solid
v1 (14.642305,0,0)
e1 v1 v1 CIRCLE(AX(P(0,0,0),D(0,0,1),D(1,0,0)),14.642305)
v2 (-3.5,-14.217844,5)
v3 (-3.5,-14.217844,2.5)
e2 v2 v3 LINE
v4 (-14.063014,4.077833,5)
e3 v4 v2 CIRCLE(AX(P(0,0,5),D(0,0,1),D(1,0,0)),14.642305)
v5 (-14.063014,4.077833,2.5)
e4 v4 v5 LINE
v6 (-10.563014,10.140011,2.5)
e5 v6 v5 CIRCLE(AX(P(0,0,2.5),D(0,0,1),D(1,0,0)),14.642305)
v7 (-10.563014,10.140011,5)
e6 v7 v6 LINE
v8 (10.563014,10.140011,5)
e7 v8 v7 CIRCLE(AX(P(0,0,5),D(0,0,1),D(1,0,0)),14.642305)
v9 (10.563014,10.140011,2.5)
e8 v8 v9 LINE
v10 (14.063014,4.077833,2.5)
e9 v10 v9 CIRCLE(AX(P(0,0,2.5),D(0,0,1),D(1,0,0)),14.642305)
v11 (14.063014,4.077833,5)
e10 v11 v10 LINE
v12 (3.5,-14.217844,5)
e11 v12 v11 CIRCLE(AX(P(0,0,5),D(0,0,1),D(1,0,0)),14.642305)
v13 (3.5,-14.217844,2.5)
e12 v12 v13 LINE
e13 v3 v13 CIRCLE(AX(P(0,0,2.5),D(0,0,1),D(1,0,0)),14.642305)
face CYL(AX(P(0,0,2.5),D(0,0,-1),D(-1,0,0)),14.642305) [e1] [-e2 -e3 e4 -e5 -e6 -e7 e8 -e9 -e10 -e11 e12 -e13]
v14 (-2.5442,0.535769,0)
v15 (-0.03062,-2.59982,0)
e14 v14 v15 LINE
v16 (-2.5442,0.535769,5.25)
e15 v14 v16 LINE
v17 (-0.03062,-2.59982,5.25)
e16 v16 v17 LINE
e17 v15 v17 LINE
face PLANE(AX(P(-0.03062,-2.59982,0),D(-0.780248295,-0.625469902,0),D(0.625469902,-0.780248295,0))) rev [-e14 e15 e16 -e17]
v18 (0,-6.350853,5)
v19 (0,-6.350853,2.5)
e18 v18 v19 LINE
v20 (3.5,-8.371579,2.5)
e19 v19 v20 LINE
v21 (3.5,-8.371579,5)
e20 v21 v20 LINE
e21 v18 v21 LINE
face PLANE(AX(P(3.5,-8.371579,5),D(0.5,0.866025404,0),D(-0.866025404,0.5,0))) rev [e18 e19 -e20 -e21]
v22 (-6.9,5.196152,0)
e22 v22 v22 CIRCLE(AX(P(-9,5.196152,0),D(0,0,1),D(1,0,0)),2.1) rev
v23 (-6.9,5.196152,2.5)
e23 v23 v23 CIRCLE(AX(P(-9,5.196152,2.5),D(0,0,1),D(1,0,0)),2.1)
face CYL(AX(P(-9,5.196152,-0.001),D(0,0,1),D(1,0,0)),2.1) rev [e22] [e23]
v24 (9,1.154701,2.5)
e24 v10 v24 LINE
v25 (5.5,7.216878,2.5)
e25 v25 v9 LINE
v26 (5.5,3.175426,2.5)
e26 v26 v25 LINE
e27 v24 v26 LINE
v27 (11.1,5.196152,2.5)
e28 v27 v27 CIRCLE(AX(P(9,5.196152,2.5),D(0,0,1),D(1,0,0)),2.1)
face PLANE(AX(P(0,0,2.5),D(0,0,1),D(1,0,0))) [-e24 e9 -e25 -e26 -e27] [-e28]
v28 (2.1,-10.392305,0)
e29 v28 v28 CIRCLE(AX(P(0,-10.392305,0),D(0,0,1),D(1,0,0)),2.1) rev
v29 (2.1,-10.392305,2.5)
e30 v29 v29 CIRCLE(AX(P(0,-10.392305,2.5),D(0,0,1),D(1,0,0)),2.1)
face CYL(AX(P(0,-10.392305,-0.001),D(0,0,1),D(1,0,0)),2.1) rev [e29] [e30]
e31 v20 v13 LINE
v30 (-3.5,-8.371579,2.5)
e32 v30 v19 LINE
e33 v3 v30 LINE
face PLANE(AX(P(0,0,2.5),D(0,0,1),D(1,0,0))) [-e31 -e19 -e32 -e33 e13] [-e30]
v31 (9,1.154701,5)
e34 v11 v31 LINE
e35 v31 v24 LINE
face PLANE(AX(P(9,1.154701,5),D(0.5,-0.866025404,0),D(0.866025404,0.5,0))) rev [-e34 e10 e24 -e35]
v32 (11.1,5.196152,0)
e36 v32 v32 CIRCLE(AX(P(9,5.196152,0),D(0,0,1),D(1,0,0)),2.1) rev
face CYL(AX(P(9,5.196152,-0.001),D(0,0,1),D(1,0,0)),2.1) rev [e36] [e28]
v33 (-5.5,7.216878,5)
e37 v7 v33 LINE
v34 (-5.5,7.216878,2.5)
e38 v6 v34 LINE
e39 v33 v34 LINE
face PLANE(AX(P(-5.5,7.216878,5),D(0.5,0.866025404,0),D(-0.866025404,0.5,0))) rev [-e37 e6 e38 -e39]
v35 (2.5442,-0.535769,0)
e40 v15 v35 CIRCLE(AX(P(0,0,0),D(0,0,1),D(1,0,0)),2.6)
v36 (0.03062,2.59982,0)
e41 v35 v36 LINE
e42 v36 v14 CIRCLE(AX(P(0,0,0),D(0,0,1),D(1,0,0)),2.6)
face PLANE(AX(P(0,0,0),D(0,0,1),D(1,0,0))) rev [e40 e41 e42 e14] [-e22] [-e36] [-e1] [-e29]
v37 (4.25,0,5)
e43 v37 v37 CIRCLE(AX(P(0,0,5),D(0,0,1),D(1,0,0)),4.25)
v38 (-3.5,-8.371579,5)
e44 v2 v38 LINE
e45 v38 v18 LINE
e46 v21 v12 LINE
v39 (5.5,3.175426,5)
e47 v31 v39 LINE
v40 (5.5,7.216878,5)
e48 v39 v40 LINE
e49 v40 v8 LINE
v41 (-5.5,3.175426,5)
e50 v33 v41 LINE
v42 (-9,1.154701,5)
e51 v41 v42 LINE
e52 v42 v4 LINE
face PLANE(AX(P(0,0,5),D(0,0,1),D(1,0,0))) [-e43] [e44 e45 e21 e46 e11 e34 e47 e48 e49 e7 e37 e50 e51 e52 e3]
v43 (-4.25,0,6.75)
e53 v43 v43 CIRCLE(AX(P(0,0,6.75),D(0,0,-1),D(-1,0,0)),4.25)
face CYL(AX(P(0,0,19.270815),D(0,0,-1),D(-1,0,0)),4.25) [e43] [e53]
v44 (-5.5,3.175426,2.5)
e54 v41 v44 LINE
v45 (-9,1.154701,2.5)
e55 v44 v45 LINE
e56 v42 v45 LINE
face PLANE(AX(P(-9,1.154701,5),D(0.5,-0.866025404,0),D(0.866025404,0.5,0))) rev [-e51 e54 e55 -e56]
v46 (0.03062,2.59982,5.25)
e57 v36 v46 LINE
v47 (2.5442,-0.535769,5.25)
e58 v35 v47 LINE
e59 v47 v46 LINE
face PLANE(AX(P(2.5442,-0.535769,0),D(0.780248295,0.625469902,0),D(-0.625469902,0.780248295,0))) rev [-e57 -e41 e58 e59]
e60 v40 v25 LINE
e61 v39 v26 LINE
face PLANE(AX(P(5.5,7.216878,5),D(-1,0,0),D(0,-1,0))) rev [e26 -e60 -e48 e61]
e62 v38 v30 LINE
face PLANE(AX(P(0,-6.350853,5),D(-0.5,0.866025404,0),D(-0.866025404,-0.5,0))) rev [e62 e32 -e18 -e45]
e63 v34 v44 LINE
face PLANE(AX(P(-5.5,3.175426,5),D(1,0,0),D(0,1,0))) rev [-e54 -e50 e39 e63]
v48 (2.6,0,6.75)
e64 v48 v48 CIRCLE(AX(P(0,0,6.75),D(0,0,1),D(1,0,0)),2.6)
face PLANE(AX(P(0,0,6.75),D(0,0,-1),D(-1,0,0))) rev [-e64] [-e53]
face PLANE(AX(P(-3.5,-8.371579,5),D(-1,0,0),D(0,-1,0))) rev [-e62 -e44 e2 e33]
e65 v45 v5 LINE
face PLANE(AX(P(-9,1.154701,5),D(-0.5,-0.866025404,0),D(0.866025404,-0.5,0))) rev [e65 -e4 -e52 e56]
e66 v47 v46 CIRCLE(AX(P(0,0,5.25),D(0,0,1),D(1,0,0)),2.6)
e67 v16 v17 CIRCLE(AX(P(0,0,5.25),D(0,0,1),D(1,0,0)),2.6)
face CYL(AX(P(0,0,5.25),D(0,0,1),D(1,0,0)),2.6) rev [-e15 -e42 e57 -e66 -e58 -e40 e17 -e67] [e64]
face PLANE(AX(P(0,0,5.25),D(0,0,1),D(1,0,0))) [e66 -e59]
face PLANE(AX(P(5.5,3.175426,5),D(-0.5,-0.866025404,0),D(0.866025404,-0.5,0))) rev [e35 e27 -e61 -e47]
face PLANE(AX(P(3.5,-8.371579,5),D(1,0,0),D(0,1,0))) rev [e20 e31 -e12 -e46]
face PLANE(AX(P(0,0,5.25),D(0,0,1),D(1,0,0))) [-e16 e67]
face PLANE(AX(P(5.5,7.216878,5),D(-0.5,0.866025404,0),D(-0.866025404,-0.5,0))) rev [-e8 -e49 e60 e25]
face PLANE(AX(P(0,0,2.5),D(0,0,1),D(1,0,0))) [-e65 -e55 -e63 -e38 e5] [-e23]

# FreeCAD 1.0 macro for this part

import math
import FreeCAD as App
import Part
import Sketcher
Q = App.Units.Quantity

doc = App.newDocument("Part")
params = doc.addObject("Spreadsheet::Sheet", "Params")
for row, (alias, value) in enumerate([
    ("pad1_length", "2.5 mm"),
    ("pad2_length", "2.5 mm"),
    ("sketch3_diameter", "4.2 mm"),
    ("sketch4_diameter", "4.2 mm"),
    ("sketch5_diameter", "4.2 mm"),
    ("sketch6_diameter", "8.5 mm"),
    ("pad3_length", "1.75 mm"),
    ("sketch7_diameter", "5.2 mm"),
    ("pocket4_length", "1.5 mm"),
    ("sketch8_radius", "2.6 mm"),
], start=1):
    params.set(f"A{row}", alias)
    params.set(f"B{row}", "=" + value)
    params.setAlias(f"B{row}", alias)

body = doc.addObject("PartDesign::Body", "Body")

# Sketch on XY plane
sketch1 = body.newObject("Sketcher::SketchObject", "Sketch")
sketch1.AttachmentSupport = (doc.getObject("XY_Plane"), [""])
sketch1.MapMode = "FlatFace"
sketch1.addGeometry(Part.Circle(App.Vector(0, 0, 0), App.Vector(0, 0, 1), 15), False)
sketch1.addConstraint([
    Sketcher.Constraint("Coincident", 0, 3, -1, 1),
    Sketcher.Constraint("Diameter", 0, Q("29.28461 mm")),
])
pad1 = body.newObject("PartDesign::Pad", "Pad")
pad1.Profile = sketch1
pad1.setExpression("Length", "Params.pad1_length")

# Sketch on XY plane
sketch2 = body.newObject("Sketcher::SketchObject", "Sketch001")
sketch2.AttachmentSupport = (doc.getObject("XY_Plane"), [""])
sketch2.MapMode = "FlatFace"
sketch2.AttachmentOffset = App.Placement(App.Vector(0, 0, 2.5), App.Rotation())
sketch2.addGeometry([
    Part.LineSegment(App.Vector(5.5, 7.2, 0), App.Vector(10.6, 10.1, 0)),  # 0
    Part.ArcOfCircle(Part.Circle(App.Vector(0, 0, 0), App.Vector(0, 0, 1), 14.6), math.radians(43.83), math.radians(48.91)),  # 1
    Part.ArcOfCircle(Part.Circle(App.Vector(0, 0, 0), App.Vector(0, 0, 1), 14.6), math.radians(49), math.radians(136)),  # 2
    Part.LineSegment(App.Vector(-10.6, 10.1, 0), App.Vector(-5.5, 7.2, 0)),  # 3
    Part.LineSegment(App.Vector(-5.5, 7.2, 0), App.Vector(-5.5, 3.2, 0)),  # 4
    Part.LineSegment(App.Vector(-5.5, 3.2, 0), App.Vector(-9, 1.2, 0)),  # 5
    Part.LineSegment(App.Vector(-9, 1.2, 0), App.Vector(-14.1, 4.1, 0)),  # 6
    Part.ArcOfCircle(Part.Circle(App.Vector(0, 0, 0), App.Vector(0, 0, 1), 14.6), math.radians(164), math.radians(256)),  # 7
    Part.LineSegment(App.Vector(-3.5, -14.2, 0), App.Vector(-3.5, -8.4, 0)),  # 8
    Part.LineSegment(App.Vector(-3.5, -8.4, 0), App.Vector(0, -6.4, 0)),  # 9
    Part.LineSegment(App.Vector(0, -6.4, 0), App.Vector(3.5, -8.4, 0)),  # 10
    Part.LineSegment(App.Vector(3.5, -8.4, 0), App.Vector(3.5, -14.2, 0)),  # 11
    Part.ArcOfCircle(Part.Circle(App.Vector(0, 0, 0), App.Vector(0, 0, 1), 14.6), math.radians(-76), math.radians(16)),  # 12
    Part.LineSegment(App.Vector(14.1, 4.1, 0), App.Vector(9, 1.2, 0)),  # 13
    Part.LineSegment(App.Vector(9, 1.2, 0), App.Vector(5.5, 3.2, 0)),  # 14
    Part.LineSegment(App.Vector(5.5, 3.2, 0), App.Vector(5.5, 7.2, 0)),  # 15
], False)
sketch2.addConstraint([
    Sketcher.Constraint("Coincident", 0, 2, 1, 1),
    Sketcher.Constraint("Tangent", 1, 2, 2, 1),
    Sketcher.Constraint("Coincident", 2, 2, 3, 1),
    Sketcher.Constraint("Coincident", 3, 2, 4, 1),
    Sketcher.Constraint("Coincident", 4, 2, 5, 1),
    Sketcher.Constraint("Coincident", 5, 2, 6, 1),
    Sketcher.Constraint("Coincident", 6, 2, 7, 1),
    Sketcher.Constraint("Coincident", 7, 2, 8, 1),
    Sketcher.Constraint("Coincident", 8, 2, 9, 1),
    Sketcher.Constraint("Coincident", 9, 2, 10, 1),
    Sketcher.Constraint("Coincident", 10, 2, 11, 1),
    Sketcher.Constraint("Coincident", 11, 2, 12, 1),
    Sketcher.Constraint("Coincident", 12, 2, 13, 1),
    Sketcher.Constraint("Coincident", 13, 2, 14, 1),
    Sketcher.Constraint("Coincident", 14, 2, 15, 1),
    Sketcher.Constraint("Coincident", 15, 2, 0, 1),
    Sketcher.Constraint("Vertical", 4),
    Sketcher.Constraint("Vertical", 8),
    Sketcher.Constraint("Vertical", 11),
    Sketcher.Constraint("Vertical", 15),
    Sketcher.Constraint("Coincident", 1, 3, -1, 1),
    Sketcher.Constraint("Coincident", 7, 3, -1, 1),
    Sketcher.Constraint("Coincident", 12, 3, -1, 1),
    Sketcher.Constraint("Equal", 1, 2),
    Sketcher.Constraint("Equal", 2, 7),
    Sketcher.Constraint("Equal", 7, 12),
    Sketcher.Constraint("Symmetric", 8, 2, 10, 2, -2),
    Sketcher.Constraint("Symmetric", 5, 2, 13, 2, -2),
    Sketcher.Constraint("Symmetric", 4, 2, 14, 2, -2),
    Sketcher.Constraint("PointOnObject", 9, 2, -2),
    Sketcher.Constraint("Parallel", 0, 5),
    Sketcher.Constraint("Parallel", 3, 6),
    Sketcher.Constraint("Parallel", 5, 9),
    Sketcher.Constraint("Parallel", 6, 10),
    Sketcher.Constraint("Parallel", 9, 13),
    Sketcher.Constraint("Horizontal", 0, 2, 2, 2),
    Sketcher.Constraint("Equal", 3, 6),
    Sketcher.Constraint("Equal", 5, 9),
    Sketcher.Constraint("Angle", 0, Q("30 deg")),
    Sketcher.Constraint("DistanceX", 5, 2, -1, 1, Q("9 mm")),
    Sketcher.Constraint("DistanceX", 8, 2, 10, 2, Q("7 mm")),
    Sketcher.Constraint("Radius", 1, Q("14.642305 mm")),
    Sketcher.Constraint("DistanceY", 4, 2, 4, 1, Q("4.041452 mm")),
    Sketcher.Constraint("DistanceY", 8, 1, 8, 2, Q("5.846265 mm")),
    Sketcher.Constraint("DistanceX", 1, 2, 0, 2, Q("0.939822 mm")),
])
pad2 = body.newObject("PartDesign::Pad", "Pad001")
pad2.Profile = sketch2
pad2.setExpression("Length", "Params.pad2_length")

# Sketch on XY plane
sketch3 = body.newObject("Sketcher::SketchObject", "Sketch002")
sketch3.AttachmentSupport = (doc.getObject("XY_Plane"), [""])
sketch3.MapMode = "FlatFace"
sketch3.AttachmentOffset = App.Placement(App.Vector(0, 0, 2.5), App.Rotation())
sketch3.addGeometry(Part.Circle(App.Vector(-9, 5.2, 0), App.Vector(0, 0, 1), 2.1), False)
sketch3.addConstraint([
    Sketcher.Constraint("Diameter", 0, Q("4.2 mm")),
    Sketcher.Constraint("DistanceX", 0, 3, -1, 1, Q("9 mm")),
    Sketcher.Constraint("DistanceY", -1, 1, 0, 3, Q("5.196152 mm")),
])
sketch3.setExpression("Constraints[0]", "Params.sketch3_diameter")
pocket1 = body.newObject("PartDesign::Pocket", "Pocket")
pocket1.Profile = sketch3
pocket1.Type = "UpToFirst"

# Sketch on XY plane
sketch4 = body.newObject("Sketcher::SketchObject", "Sketch003")
sketch4.AttachmentSupport = (doc.getObject("XY_Plane"), [""])
sketch4.MapMode = "FlatFace"
sketch4.AttachmentOffset = App.Placement(App.Vector(0, 0, 2.5), App.Rotation())
sketch4.addGeometry(Part.Circle(App.Vector(9, 5.2, 0), App.Vector(0, 0, 1), 2.1), False)
sketch4.addConstraint([
    Sketcher.Constraint("Diameter", 0, Q("4.2 mm")),
    Sketcher.Constraint("DistanceX", -1, 1, 0, 3, Q("9 mm")),
    Sketcher.Constraint("DistanceY", -1, 1, 0, 3, Q("5.196152 mm")),
])
sketch4.setExpression("Constraints[0]", "Params.sketch4_diameter")
pocket2 = body.newObject("PartDesign::Pocket", "Pocket001")
pocket2.Profile = sketch4
pocket2.Type = "UpToFirst"

# Sketch on XY plane
sketch5 = body.newObject("Sketcher::SketchObject", "Sketch004")
sketch5.AttachmentSupport = (doc.getObject("XY_Plane"), [""])
sketch5.MapMode = "FlatFace"
sketch5.AttachmentOffset = App.Placement(App.Vector(0, 0, 2.5), App.Rotation())
sketch5.addGeometry(Part.Circle(App.Vector(0, -10.4, 0), App.Vector(0, 0, 1), 2.1), False)
sketch5.addConstraint([
    Sketcher.Constraint("PointOnObject", 0, 3, -2),
    Sketcher.Constraint("Diameter", 0, Q("4.2 mm")),
    Sketcher.Constraint("DistanceY", 0, 3, -1, 1, Q("10.392305 mm")),
])
sketch5.setExpression("Constraints[1]", "Params.sketch5_diameter")
pocket3 = body.newObject("PartDesign::Pocket", "Pocket002")
pocket3.Profile = sketch5
pocket3.Type = "UpToFirst"

# Sketch on XY plane
sketch6 = body.newObject("Sketcher::SketchObject", "Sketch005")
sketch6.AttachmentSupport = (doc.getObject("XY_Plane"), [""])
sketch6.MapMode = "FlatFace"
sketch6.AttachmentOffset = App.Placement(App.Vector(0, 0, 5), App.Rotation())
sketch6.addGeometry(Part.Circle(App.Vector(0, 0, 0), App.Vector(0, 0, 1), 4.2), False)
sketch6.addConstraint([
    Sketcher.Constraint("Coincident", 0, 3, -1, 1),
    Sketcher.Constraint("Diameter", 0, Q("8.5 mm")),
])
sketch6.setExpression("Constraints[1]", "Params.sketch6_diameter")
pad3 = body.newObject("PartDesign::Pad", "Pad002")
pad3.Profile = sketch6
pad3.setExpression("Length", "Params.pad3_length")

# Sketch on XY plane
sketch7 = body.newObject("Sketcher::SketchObject", "Sketch006")
sketch7.AttachmentSupport = (doc.getObject("XY_Plane"), [""])
sketch7.MapMode = "FlatFace"
sketch7.AttachmentOffset = App.Placement(App.Vector(0, 0, 6.75), App.Rotation())
sketch7.addGeometry(Part.Circle(App.Vector(0, 0, 0), App.Vector(0, 0, 1), 2.6), False)
sketch7.addConstraint([
    Sketcher.Constraint("Coincident", 0, 3, -1, 1),
    Sketcher.Constraint("Diameter", 0, Q("5.2 mm")),
])
sketch7.setExpression("Constraints[1]", "Params.sketch7_diameter")
pocket4 = body.newObject("PartDesign::Pocket", "Pocket003")
pocket4.Profile = sketch7
pocket4.setExpression("Length", "Params.pocket4_length")

# Sketch on XY plane
sketch8 = body.newObject("Sketcher::SketchObject", "Sketch007")
sketch8.AttachmentSupport = (doc.getObject("XY_Plane"), [""])
sketch8.MapMode = "FlatFace"
sketch8.AttachmentOffset = App.Placement(App.Vector(0, 0, 6.75), App.Rotation())
sketch8.addGeometry([
    Part.LineSegment(App.Vector(2.5, -0.5, 0), App.Vector(0, 2.6, 0)),
    Part.ArcOfCircle(Part.Circle(App.Vector(0, 0, 0), App.Vector(0, 0, 1), 2.6), math.radians(89), math.radians(168)),
    Part.LineSegment(App.Vector(-2.5, 0.5, 0), App.Vector(0, -2.6, 0)),
    Part.ArcOfCircle(Part.Circle(App.Vector(0, 0, 0), App.Vector(0, 0, 1), 2.6), math.radians(-91), math.radians(-12)),
], False)
sketch8.addConstraint([
    Sketcher.Constraint("Coincident", 0, 2, 1, 1),
    Sketcher.Constraint("Coincident", 1, 2, 2, 1),
    Sketcher.Constraint("Coincident", 2, 2, 3, 1),
    Sketcher.Constraint("Coincident", 3, 2, 0, 1),
    Sketcher.Constraint("Coincident", 1, 3, -1, 1),
    Sketcher.Constraint("Coincident", 3, 3, -1, 1),
    Sketcher.Constraint("Equal", 1, 3),
    Sketcher.Constraint("Parallel", 0, 2),
    Sketcher.Constraint("Equal", 0, 2),
    Sketcher.Constraint("Radius", 1, Q("2.6 mm")),
    Sketcher.Constraint("DistanceX", 1, 2, -1, 1, Q("2.5442 mm")),
    Sketcher.Constraint("DistanceX", -1, 1, 0, 2, Q("0.03062 mm")),
])
sketch8.setExpression("Constraints[9]", "Params.sketch8_radius")
pocket5 = body.newObject("PartDesign::Pocket", "Pocket004")
pocket5.Profile = sketch8
pocket5.Type = "ThroughAll"

doc.recompute()
